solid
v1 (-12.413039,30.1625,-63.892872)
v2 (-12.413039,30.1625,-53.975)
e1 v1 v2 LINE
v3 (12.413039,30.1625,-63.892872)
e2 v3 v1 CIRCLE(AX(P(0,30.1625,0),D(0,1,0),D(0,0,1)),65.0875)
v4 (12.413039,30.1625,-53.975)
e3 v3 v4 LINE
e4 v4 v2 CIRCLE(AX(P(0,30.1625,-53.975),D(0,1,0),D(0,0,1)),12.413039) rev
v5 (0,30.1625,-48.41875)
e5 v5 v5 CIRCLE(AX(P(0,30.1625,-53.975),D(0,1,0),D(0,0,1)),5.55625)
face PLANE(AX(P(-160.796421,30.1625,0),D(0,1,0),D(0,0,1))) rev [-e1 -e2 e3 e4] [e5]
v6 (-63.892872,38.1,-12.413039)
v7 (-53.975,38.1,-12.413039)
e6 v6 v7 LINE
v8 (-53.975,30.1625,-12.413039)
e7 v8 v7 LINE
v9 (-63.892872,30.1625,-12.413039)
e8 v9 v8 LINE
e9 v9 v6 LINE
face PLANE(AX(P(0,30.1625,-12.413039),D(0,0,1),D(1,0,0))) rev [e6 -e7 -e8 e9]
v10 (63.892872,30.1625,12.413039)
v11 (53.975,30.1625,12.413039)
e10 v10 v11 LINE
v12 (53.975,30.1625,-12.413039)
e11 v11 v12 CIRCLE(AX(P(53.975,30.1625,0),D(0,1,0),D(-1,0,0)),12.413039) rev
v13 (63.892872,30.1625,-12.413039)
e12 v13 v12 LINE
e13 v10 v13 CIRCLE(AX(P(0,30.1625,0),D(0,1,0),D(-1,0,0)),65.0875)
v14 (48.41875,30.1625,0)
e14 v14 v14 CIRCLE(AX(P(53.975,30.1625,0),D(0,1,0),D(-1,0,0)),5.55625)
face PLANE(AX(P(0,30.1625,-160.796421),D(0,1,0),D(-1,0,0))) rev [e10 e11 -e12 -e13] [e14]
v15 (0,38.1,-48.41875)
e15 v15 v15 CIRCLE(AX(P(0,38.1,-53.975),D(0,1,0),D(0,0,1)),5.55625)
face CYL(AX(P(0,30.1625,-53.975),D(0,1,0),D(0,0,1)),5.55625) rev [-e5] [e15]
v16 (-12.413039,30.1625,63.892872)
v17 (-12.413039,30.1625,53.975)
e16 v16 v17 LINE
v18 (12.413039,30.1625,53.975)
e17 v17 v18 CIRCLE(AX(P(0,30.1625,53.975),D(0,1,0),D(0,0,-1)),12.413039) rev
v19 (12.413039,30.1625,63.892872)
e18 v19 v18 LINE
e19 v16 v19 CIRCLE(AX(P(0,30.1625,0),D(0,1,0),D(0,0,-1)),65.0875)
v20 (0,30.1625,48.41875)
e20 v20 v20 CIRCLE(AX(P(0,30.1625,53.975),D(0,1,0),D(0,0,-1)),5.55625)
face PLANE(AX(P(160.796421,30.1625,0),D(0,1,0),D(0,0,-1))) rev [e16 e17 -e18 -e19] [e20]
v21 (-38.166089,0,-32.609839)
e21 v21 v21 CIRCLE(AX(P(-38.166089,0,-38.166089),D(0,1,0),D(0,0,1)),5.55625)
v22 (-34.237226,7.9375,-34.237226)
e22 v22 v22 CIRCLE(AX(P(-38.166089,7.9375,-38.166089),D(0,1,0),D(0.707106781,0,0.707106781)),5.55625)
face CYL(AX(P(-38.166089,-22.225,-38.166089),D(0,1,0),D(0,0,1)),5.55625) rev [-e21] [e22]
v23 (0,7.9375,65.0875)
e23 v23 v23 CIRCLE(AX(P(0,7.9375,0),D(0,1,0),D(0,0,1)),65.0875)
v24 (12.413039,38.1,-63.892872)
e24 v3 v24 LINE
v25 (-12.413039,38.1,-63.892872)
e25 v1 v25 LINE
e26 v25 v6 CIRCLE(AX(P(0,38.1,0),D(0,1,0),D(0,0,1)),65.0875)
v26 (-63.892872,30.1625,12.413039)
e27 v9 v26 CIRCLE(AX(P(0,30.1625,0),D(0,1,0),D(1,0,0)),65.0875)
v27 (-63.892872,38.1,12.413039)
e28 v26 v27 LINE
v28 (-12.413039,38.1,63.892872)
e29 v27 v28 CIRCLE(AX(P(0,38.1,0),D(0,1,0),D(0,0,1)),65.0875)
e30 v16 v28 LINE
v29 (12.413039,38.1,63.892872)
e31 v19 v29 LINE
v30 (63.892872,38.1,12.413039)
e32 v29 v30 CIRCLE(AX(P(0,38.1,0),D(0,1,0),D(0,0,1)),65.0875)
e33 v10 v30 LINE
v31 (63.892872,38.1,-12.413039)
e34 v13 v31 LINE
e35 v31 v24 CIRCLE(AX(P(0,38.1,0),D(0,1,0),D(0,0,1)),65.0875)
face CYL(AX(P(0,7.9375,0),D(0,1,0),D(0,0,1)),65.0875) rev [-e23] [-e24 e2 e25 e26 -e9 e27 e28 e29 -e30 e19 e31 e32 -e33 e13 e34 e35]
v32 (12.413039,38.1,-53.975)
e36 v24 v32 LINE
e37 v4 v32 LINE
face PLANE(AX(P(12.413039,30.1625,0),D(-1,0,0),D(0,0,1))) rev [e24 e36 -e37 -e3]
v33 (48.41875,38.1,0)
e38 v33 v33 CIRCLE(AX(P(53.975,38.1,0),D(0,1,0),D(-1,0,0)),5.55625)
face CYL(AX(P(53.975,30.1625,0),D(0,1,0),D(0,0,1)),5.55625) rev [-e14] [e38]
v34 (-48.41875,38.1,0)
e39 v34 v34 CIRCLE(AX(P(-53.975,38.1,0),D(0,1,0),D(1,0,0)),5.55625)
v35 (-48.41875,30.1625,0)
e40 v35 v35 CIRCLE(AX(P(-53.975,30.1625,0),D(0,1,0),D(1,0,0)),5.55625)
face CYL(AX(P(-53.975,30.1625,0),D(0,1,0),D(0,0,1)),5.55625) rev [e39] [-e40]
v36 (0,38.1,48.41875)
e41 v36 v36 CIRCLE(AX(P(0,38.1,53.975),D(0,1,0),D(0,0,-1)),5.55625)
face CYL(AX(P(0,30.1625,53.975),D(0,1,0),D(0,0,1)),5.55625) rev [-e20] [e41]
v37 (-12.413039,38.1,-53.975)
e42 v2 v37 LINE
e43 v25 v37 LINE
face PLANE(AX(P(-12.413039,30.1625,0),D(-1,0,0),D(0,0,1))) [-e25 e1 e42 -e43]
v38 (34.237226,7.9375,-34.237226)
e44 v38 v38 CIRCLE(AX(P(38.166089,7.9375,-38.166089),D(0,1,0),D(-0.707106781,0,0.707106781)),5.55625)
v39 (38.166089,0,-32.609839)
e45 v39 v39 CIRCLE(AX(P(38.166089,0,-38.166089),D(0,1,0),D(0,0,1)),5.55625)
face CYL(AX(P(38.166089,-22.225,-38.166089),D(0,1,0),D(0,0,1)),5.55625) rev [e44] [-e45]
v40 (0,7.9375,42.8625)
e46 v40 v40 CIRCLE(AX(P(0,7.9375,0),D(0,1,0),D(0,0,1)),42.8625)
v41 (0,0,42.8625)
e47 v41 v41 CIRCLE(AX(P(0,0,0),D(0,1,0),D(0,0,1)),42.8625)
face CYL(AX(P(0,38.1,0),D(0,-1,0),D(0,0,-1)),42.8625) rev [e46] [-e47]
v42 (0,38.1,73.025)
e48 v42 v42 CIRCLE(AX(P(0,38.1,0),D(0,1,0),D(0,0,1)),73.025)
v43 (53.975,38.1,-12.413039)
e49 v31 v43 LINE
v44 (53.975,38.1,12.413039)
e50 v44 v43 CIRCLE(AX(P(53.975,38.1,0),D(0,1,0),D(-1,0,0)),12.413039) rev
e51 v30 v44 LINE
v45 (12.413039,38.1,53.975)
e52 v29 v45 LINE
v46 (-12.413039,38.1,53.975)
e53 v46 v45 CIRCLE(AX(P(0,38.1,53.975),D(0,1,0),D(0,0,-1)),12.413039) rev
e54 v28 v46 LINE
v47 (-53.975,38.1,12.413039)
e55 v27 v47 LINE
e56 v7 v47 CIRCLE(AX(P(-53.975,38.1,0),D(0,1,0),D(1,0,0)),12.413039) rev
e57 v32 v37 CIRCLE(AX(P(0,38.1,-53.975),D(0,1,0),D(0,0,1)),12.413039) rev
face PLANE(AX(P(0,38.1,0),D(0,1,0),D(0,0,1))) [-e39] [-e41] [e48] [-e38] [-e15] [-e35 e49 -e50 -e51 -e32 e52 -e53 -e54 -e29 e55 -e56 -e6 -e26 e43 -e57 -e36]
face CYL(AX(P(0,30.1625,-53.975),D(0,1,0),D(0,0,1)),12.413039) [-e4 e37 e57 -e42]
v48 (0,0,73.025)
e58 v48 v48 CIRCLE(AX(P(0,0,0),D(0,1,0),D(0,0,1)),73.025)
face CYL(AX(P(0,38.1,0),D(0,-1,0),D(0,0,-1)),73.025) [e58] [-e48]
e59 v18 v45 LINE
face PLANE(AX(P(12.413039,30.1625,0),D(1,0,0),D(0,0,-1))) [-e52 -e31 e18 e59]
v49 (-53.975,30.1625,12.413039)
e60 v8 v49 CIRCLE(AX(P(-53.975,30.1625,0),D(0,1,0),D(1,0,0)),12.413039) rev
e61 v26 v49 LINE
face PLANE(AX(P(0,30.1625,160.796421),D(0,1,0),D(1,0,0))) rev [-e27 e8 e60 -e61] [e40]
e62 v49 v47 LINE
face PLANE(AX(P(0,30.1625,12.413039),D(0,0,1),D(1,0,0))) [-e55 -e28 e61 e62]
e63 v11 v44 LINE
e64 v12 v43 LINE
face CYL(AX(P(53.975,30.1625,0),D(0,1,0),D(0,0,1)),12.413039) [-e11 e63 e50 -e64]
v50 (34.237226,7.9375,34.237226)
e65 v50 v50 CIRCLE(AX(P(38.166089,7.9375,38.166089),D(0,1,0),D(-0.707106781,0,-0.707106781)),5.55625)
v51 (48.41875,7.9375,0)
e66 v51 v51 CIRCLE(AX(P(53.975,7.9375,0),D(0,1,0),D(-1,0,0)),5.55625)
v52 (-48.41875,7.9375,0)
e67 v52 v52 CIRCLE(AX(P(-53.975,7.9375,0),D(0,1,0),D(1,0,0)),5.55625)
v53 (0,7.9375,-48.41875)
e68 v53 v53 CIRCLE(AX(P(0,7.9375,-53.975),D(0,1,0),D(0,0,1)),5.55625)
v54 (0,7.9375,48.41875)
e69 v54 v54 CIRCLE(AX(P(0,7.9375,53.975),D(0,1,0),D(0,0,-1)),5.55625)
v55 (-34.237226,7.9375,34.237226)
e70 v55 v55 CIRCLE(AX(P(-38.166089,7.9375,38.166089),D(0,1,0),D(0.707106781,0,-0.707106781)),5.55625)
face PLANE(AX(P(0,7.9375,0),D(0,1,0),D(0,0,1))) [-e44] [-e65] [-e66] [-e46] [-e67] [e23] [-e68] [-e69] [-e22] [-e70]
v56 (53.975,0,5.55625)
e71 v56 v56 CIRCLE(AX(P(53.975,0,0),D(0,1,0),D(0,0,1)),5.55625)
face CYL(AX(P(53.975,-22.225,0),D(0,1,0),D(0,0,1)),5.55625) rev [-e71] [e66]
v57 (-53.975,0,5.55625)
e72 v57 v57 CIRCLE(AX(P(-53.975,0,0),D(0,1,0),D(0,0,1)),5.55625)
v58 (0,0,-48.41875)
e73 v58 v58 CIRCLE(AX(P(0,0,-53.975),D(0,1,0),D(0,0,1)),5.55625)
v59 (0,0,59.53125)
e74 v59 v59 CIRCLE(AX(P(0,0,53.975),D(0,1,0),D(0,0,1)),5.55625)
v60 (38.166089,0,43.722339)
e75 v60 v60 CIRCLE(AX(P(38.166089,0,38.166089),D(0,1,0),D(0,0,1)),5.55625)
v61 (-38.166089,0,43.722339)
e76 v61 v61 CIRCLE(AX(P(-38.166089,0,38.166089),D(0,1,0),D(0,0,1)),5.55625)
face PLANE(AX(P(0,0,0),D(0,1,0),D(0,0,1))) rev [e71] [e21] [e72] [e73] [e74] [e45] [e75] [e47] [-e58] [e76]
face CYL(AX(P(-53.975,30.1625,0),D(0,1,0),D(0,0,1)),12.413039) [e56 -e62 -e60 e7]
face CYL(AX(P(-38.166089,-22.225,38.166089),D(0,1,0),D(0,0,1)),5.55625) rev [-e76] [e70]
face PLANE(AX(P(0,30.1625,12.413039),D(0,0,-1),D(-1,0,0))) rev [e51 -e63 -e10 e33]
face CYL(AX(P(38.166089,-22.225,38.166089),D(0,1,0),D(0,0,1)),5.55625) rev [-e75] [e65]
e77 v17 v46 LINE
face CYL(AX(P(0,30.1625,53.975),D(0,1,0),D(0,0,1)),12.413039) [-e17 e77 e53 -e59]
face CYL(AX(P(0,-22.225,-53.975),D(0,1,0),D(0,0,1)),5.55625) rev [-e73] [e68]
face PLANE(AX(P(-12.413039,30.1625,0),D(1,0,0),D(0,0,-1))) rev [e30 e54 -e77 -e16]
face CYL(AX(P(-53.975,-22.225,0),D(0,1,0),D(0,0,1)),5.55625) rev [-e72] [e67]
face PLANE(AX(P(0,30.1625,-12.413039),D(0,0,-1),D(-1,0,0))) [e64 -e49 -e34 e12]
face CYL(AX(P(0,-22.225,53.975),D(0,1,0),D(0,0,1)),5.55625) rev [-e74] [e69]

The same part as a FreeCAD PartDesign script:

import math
import FreeCAD as App
import Part
import Sketcher
Q = App.Units.Quantity

doc = App.newDocument("Part")
params = doc.addObject("Spreadsheet::Sheet", "Params")
for row, (alias, value) in enumerate([
    ("sketch1_diameter", "5.75 in"),
    ("sketch1_diameter2", "3.375 in"),
    ("pad1_length", "1.5 in"),
    ("sketch2_diameter", "5.125 in"),
    ("pocket1_length", "1.1875 in"),
    ("sketch3_diameter", "0.4375 in"),
    ("pocket2_length", "1.1875 in"),
    ("sketch4_diameter", "0.4375 in"),
    ("sketch4_radius", "2.5625 in"),
    ("pad2_length", "0.3125 in"),
], start=1):
    params.set(f"A{row}", alias)
    params.set(f"B{row}", "=" + value)
    params.setAlias(f"B{row}", alias)

body = doc.addObject("PartDesign::Body", "Body")

sketch1 = body.newObject("Sketcher::SketchObject", "Sketch")
sketch1.AttachmentSupport = (doc.getObject("XZ_Plane"), [""])
sketch1.MapMode = "FlatFace"
sketch1.addGeometry([
    Part.Circle(App.Vector(0, 0, 0), App.Vector(0, 0, 1), 73.025),
    Part.Circle(App.Vector(0, 0, 0), App.Vector(0, 0, 1), 42.8625),
], False)
sketch1.addConstraint([
    Sketcher.Constraint("Coincident", 0, 3, -1, 1),
    Sketcher.Constraint("Coincident", 1, 3, -1, 1),
    Sketcher.Constraint("Diameter", 0, Q("5.75 in")),
    Sketcher.Constraint("Diameter", 1, Q("3.375 in")),
])
sketch1.setExpression("Constraints[2]", "Params.sketch1_diameter")
sketch1.setExpression("Constraints[3]", "Params.sketch1_diameter2")
pad1 = body.newObject("PartDesign::Pad", "Pad")
pad1.Profile = sketch1
pad1.setExpression("Length", "Params.pad1_length")
pad1.Reversed = True

sketch2 = body.newObject("Sketcher::SketchObject", "Sketch001")
sketch2.AttachmentSupport = (doc.getObject("XZ_Plane"), [""])
sketch2.MapMode = "FlatFace"
sketch2.AttachmentOffset = App.Placement(App.Vector(0, 0, -1.5 * 25.4), App.Rotation())
sketch2.addGeometry(Part.Circle(App.Vector(0, 0, 0), App.Vector(0, 0, 1), 65.0875), False)
sketch2.addConstraint([
    Sketcher.Constraint("Coincident", 0, 3, -1, 1),
    Sketcher.Constraint("Diameter", 0, Q("5.125 in")),
])
sketch2.setExpression("Constraints[1]", "Params.sketch2_diameter")
pocket1 = body.newObject("PartDesign::Pocket", "Pocket")
pocket1.Profile = sketch2
pocket1.setExpression("Length", "Params.pocket1_length")
pocket1.Reversed = True

sketch3 = body.newObject("Sketcher::SketchObject", "Sketch002")
sketch3.AttachmentSupport = (doc.getObject("XZ_Plane"), [""])
sketch3.MapMode = "FlatFace"
sketch3.AttachmentOffset = App.Placement(App.Vector(0, 0, -0.3125 * 25.4), App.Rotation())
sketch3.addGeometry(Part.Circle(App.Vector(0, -53.975, 0), App.Vector(0, 0, 1), 5.55625), False)
sketch3.addConstraint([
    Sketcher.Constraint("PointOnObject", 0, 3, -2),
    Sketcher.Constraint("Diameter", 0, Q("0.4375 in")),
    Sketcher.Constraint("DistanceY", 0, 3, -1, 1, Q("2.125 in")),
])
sketch3.setExpression("Constraints[1]", "Params.sketch3_diameter")
pocket2 = body.newObject("PartDesign::Pocket", "Pocket001")
pocket2.Profile = sketch3
pocket2.setExpression("Length", "Params.pocket2_length")
pocket2.Reversed = True
doc.recompute()

polarpattern = body.newObject("PartDesign::PolarPattern", "PolarPattern")
polarpattern.Originals = [pocket2]
polarpattern.Axis = (doc.getObject("Y_Axis"), [""])
polarpattern.Angle = 360
polarpattern.Occurrences = 8
body.Tip = polarpattern

sketch4 = body.newObject("Sketcher::SketchObject", "Sketch003")
sketch4.AttachmentSupport = (doc.getObject("XZ_Plane"), [""])
sketch4.MapMode = "FlatFace"
sketch4.AttachmentOffset = App.Placement(App.Vector(0, 0, -1.5 * 25.4), App.Rotation())
sketch4.addGeometry([
    Part.ArcOfCircle(Part.Circle(App.Vector(0, 0, 0), App.Vector(0, 0, 1), 65.0875), math.radians(-100.994403), math.radians(-79.005597)),
    Part.LineSegment(App.Vector(-12.413039, -63.892872, 0), App.Vector(-12.413039, -53.975, 0)),
    Part.ArcOfCircle(Part.Circle(App.Vector(0, -53.975, 0), App.Vector(0, 0, 1), 12.413039), math.radians(0), math.radians(180)),
    Part.LineSegment(App.Vector(12.413039, -53.975, 0), App.Vector(12.413039, -63.892872, 0)),
    Part.Circle(App.Vector(0, -53.975, 0), App.Vector(0, 0, 1), 5.55625),
], False)
sketch4.addConstraint([
    Sketcher.Constraint("Coincident", 0, 1, 1, 1),
    Sketcher.Constraint("Tangent", 1, 2, 2, 2),
    Sketcher.Constraint("Tangent", 2, 1, 3, 1),
    Sketcher.Constraint("Coincident", 3, 2, 0, 2),
    Sketcher.Constraint("Vertical", 1),
    Sketcher.Constraint("Vertical", 3),
    Sketcher.Constraint("Coincident", 0, 3, -1, 1),
    Sketcher.Constraint("Coincident", 4, 3, 2, 3),
    Sketcher.Constraint("PointOnObject", 2, 3, -2),
    Sketcher.Constraint("Diameter", 4, Q("0.4375 in")),
    Sketcher.Constraint("Radius", 0, Q("2.5625 in")),
    Sketcher.Constraint("DistanceY", 2, 3, -1, 1, Q("2.125 in")),
    Sketcher.Constraint("Radius", 2, Q("12.413039 mm")),
])
sketch4.setExpression("Constraints[9]", "Params.sketch4_diameter")
sketch4.setExpression("Constraints[10]", "Params.sketch4_radius")
pad2 = body.newObject("PartDesign::Pad", "Pad001")
pad2.Profile = sketch4
pad2.setExpression("Length", "Params.pad2_length")
doc.recompute()

polarpattern2 = body.newObject("PartDesign::PolarPattern", "PolarPattern001")
polarpattern2.Originals = [pad2]
polarpattern2.Axis = (doc.getObject("Y_Axis"), [""])
polarpattern2.Angle = 360
polarpattern2.Occurrences = 4
body.Tip = polarpattern2

doc.recompute()
